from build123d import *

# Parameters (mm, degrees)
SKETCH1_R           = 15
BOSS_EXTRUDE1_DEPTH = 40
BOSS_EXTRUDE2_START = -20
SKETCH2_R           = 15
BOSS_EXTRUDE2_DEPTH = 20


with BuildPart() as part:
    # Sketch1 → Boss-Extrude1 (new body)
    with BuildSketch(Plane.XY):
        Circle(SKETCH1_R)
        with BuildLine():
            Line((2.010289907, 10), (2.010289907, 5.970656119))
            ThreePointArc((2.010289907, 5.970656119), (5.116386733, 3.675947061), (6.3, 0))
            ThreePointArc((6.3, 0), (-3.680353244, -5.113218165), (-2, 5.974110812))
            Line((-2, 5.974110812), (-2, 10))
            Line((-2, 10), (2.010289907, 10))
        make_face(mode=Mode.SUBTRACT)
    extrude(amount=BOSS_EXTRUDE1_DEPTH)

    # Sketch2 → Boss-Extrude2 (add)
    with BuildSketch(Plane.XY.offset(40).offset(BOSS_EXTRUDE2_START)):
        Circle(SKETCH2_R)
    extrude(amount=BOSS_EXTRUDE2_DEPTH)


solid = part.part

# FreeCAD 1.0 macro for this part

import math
import FreeCAD as App
import Part
import Sketcher

doc = App.newDocument("Part")
body = doc.addObject("PartDesign::Body", "Body")

# Sketch on XY plane
sketch1 = body.newObject("Sketcher::SketchObject", "Sketch")
sketch1.AttachmentSupport = (doc.getObject("XY_Plane"), [""])
sketch1.MapMode = "FlatFace"
sketch1.addGeometry([
    Part.Circle(App.Vector(0, 0, 0), App.Vector(0, 0, 1), 15),  # 0
    Part.LineSegment(App.Vector(-2, 10, 0), App.Vector(2, 10, 0)),  # 1
    Part.LineSegment(App.Vector(2, 10, 0), App.Vector(2, 6, 0)),  # 2
    Part.ArcOfCircle(Part.Circle(App.Vector(0, 0, 0), App.Vector(0, 0, 1), 6.3), math.radians(0), math.radians(71)),  # 3
    Part.ArcOfCircle(Part.Circle(App.Vector(0, 0, 0), App.Vector(0, 0, 1), 6.3), math.radians(109), math.radians(360)),  # 4
    Part.LineSegment(App.Vector(-2, 6, 0), App.Vector(-2, 10, 0)),  # 5
], False)
sketch1.addConstraint([
    Sketcher.Constraint("Coincident", 1, 2, 2, 1),
    Sketcher.Constraint("Coincident", 2, 2, 3, 2),
    Sketcher.Constraint("Tangent", 3, 1, 4, 2),
    Sketcher.Constraint("Coincident", 4, 1, 5, 1),
    Sketcher.Constraint("Coincident", 5, 2, 1, 1),
    Sketcher.Constraint("Horizontal", 1),
    Sketcher.Constraint("Vertical", 2),
    Sketcher.Constraint("Vertical", 5),
    Sketcher.Constraint("Coincident", 0, 3, -1, 1),
    Sketcher.Constraint("Coincident", 3, 3, -1, 1),
    Sketcher.Constraint("Equal", 3, 4),
    Sketcher.Constraint("PointOnObject", 3, 1, -1),
    Sketcher.Constraint("Diameter", 0, 30.0),
    Sketcher.Constraint("Radius", 3, 6.3),
    Sketcher.Constraint("DistanceY", -1, 1, 1, 2, 10.0),
    Sketcher.Constraint("DistanceX", 4, 1, -1, 1, 2.0),
    Sketcher.Constraint("DistanceX", 1, 1, 1, 2, 4.01029),
])
pad1 = body.newObject("PartDesign::Pad", "Pad")
pad1.Profile = sketch1
pad1.Length = 40

# Sketch on XY plane
sketch2 = body.newObject("Sketcher::SketchObject", "Sketch001")
sketch2.AttachmentSupport = (doc.getObject("XY_Plane"), [""])
sketch2.MapMode = "FlatFace"
sketch2.AttachmentOffset = App.Placement(App.Vector(0, 0, 20), App.Rotation())
sketch2.addGeometry(Part.Circle(App.Vector(0, 0, 0), App.Vector(0, 0, 1), 15), False)
sketch2.addConstraint([
    Sketcher.Constraint("Coincident", 0, 3, -1, 1),
    Sketcher.Constraint("Diameter", 0, 30.0),
])
pad2 = body.newObject("PartDesign::Pad", "Pad001")
pad2.Profile = sketch2
pad2.Length = 20

doc.recompute()
